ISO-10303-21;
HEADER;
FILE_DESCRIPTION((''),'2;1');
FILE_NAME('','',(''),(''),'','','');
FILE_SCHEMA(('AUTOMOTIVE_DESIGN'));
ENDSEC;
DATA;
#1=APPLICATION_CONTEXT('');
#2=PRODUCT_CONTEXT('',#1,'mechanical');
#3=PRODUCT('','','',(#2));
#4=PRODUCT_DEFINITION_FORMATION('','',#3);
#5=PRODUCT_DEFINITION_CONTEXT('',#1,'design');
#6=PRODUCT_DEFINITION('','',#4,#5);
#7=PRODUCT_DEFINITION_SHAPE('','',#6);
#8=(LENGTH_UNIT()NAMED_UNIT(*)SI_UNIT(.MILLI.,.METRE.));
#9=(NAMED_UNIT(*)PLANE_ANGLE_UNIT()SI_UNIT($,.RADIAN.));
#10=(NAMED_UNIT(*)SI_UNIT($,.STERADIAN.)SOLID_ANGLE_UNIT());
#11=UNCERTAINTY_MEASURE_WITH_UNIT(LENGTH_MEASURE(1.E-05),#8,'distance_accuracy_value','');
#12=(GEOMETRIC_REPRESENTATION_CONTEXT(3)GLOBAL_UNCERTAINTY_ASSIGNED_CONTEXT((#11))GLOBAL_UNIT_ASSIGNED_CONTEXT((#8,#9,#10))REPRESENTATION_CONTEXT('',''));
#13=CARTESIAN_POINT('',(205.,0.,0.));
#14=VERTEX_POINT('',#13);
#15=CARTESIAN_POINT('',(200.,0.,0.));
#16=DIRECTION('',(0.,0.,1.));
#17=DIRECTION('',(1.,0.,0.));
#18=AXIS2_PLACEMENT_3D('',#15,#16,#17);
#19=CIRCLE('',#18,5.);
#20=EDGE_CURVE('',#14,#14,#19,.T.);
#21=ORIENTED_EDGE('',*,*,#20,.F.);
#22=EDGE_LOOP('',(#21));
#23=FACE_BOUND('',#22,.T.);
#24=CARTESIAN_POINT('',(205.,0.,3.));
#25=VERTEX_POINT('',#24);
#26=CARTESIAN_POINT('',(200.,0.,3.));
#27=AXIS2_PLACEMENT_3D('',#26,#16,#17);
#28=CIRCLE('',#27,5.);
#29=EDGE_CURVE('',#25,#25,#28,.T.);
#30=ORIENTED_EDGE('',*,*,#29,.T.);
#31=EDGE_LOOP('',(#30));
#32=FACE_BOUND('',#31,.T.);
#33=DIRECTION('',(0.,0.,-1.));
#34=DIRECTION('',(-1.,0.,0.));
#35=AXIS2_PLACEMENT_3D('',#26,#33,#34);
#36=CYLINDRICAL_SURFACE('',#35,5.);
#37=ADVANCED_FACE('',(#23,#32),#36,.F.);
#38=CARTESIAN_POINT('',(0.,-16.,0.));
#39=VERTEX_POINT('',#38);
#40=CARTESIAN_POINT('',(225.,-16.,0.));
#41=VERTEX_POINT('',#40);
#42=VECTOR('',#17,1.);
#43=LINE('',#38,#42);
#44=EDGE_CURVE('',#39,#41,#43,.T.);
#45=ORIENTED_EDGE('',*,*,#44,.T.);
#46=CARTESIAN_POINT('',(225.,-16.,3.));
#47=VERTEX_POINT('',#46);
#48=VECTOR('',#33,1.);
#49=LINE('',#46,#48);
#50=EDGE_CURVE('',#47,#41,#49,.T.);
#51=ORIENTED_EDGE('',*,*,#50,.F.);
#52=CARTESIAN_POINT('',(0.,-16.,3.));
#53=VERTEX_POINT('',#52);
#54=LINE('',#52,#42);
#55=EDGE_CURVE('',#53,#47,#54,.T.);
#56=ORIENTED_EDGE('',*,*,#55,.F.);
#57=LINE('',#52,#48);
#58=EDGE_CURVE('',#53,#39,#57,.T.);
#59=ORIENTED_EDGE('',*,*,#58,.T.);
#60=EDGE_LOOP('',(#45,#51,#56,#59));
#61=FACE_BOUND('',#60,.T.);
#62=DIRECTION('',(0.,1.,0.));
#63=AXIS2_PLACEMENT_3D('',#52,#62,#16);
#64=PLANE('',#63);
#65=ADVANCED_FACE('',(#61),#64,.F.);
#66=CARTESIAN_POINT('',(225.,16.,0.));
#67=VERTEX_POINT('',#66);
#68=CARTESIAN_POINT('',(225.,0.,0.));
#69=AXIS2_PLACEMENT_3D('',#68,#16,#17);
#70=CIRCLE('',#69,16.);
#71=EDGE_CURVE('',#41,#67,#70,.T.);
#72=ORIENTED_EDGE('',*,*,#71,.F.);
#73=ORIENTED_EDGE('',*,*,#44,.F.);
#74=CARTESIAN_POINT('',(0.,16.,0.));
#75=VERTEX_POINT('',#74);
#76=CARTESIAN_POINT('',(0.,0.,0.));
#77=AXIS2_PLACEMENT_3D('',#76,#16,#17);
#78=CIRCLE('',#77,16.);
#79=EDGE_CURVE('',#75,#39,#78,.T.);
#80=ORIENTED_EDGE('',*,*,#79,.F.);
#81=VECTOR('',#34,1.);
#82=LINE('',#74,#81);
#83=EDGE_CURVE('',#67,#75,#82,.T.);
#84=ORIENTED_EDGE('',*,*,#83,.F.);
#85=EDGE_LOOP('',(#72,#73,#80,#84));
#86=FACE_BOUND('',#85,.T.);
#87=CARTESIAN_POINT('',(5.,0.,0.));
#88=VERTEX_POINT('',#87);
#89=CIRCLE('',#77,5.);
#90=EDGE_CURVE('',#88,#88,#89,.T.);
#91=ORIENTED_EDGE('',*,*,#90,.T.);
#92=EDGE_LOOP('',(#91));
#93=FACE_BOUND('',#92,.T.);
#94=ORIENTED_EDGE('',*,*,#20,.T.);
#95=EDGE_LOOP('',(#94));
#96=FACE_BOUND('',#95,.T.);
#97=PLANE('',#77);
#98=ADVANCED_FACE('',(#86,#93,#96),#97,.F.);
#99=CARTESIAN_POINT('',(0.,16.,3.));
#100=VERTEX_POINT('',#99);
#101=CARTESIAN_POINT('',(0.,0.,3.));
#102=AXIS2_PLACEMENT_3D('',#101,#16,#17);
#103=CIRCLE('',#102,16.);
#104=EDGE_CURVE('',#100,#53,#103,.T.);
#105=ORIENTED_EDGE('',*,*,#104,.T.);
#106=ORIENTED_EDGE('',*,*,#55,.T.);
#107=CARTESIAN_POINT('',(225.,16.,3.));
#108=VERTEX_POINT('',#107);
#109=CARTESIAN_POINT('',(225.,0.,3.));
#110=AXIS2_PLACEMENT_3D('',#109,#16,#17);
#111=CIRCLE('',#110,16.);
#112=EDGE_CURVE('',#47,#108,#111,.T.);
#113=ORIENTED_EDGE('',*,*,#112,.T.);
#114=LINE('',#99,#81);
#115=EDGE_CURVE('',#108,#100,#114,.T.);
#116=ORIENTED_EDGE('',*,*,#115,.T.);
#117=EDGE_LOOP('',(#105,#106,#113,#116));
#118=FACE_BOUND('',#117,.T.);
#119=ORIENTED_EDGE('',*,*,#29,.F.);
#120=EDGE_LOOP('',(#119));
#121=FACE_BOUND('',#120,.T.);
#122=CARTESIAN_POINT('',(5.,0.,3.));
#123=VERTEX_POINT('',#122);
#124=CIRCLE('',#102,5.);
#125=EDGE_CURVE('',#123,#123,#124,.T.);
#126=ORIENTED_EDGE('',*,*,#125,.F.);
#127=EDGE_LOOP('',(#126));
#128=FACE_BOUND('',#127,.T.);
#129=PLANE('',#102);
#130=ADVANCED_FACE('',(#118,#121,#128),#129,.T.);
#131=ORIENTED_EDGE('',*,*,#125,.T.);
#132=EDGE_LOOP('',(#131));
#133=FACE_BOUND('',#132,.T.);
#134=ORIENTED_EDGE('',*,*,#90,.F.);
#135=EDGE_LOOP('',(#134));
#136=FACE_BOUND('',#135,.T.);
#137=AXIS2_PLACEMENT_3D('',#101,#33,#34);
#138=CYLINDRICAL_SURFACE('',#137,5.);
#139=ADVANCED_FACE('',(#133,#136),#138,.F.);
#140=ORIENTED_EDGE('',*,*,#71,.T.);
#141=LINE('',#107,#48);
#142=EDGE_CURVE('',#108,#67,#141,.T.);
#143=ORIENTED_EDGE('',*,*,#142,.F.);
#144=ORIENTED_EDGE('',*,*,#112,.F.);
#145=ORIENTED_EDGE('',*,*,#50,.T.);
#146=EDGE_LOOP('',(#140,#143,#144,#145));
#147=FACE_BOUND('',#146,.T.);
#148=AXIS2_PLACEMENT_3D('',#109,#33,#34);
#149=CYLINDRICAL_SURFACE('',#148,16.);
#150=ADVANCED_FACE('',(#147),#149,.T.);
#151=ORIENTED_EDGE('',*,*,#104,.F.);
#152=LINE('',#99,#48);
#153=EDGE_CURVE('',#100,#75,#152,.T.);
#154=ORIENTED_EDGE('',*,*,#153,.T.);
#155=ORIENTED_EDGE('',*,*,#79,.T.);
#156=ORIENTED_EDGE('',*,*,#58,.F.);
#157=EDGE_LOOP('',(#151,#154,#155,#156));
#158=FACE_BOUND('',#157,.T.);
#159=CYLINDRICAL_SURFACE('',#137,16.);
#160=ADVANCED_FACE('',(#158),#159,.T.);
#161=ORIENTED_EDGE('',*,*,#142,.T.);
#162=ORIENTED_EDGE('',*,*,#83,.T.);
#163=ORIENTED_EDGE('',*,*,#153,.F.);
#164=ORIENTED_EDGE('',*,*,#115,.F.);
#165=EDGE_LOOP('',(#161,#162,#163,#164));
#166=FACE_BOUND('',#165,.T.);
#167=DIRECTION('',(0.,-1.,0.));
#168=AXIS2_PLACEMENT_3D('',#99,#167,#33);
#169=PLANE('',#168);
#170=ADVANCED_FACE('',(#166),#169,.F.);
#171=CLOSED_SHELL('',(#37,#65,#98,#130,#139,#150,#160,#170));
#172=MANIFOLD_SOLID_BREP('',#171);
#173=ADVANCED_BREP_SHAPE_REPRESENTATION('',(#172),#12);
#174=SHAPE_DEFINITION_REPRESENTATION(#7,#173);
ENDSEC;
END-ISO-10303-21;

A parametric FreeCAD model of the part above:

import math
import FreeCAD as App
import Part
import Sketcher

V = App.Vector

doc = App.newDocument("Part")
body = doc.addObject("PartDesign::Body", "Body")

# Sketch on XY plane
sketch1 = body.newObject("Sketcher::SketchObject", "Sketch")
sketch1.AttachmentSupport = (doc.getObject("XY_Plane"), [""])
sketch1.MapMode = "FlatFace"
sketch1.addGeometry(Part.LineSegment(V(225, 16, 0), V(0, 16, 0)), False)
sketch1.addGeometry(Part.ArcOfCircle(Part.Circle(V(0, 0, 0), V(0, 0, 1), 16), math.radians(90), math.radians(270)), False)
sketch1.addGeometry(Part.LineSegment(V(0, -16, 0), V(225, -16, 0)), False)
sketch1.addGeometry(Part.ArcOfCircle(Part.Circle(V(225, 0, 0), V(0, 0, 1), 16), math.radians(-90), math.radians(90)), False)
sketch1.addGeometry(Part.Circle(V(200, 0, 0), V(0, 0, 1), 5), False)
sketch1.addGeometry(Part.Circle(V(0, 0, 0), V(0, 0, 1), 5), False)
sketch1.addConstraint(Sketcher.Constraint("Tangent", 0, 2, 1, 1))
sketch1.addConstraint(Sketcher.Constraint("Tangent", 1, 2, 2, 1))
sketch1.addConstraint(Sketcher.Constraint("Tangent", 2, 2, 3, 1))
sketch1.addConstraint(Sketcher.Constraint("Tangent", 3, 2, 0, 1))
sketch1.addConstraint(Sketcher.Constraint("Horizontal", 0))
sketch1.addConstraint(Sketcher.Constraint("Horizontal", 2))
sketch1.addConstraint(Sketcher.Constraint("Coincident", 1, 3, -1, 1))
sketch1.addConstraint(Sketcher.Constraint("Coincident", 5, 3, -1, 1))
sketch1.addConstraint(Sketcher.Constraint("Equal", 4, 5))
sketch1.addConstraint(Sketcher.Constraint("PointOnObject", 4, 3, -1))
sketch1.addConstraint(Sketcher.Constraint("Diameter", 4, 10.0))
sketch1.addConstraint(Sketcher.Constraint("Radius", 1, 16.0))
sketch1.addConstraint(Sketcher.Constraint("DistanceX", 0, 2, 0, 1, 225.0))
sketch1.addConstraint(Sketcher.Constraint("DistanceX", -1, 1, 4, 3, 200.0))
pad1 = body.newObject("PartDesign::Pad", "Pad")
pad1.Profile = sketch1
pad1.Length = 3

doc.recompute()
